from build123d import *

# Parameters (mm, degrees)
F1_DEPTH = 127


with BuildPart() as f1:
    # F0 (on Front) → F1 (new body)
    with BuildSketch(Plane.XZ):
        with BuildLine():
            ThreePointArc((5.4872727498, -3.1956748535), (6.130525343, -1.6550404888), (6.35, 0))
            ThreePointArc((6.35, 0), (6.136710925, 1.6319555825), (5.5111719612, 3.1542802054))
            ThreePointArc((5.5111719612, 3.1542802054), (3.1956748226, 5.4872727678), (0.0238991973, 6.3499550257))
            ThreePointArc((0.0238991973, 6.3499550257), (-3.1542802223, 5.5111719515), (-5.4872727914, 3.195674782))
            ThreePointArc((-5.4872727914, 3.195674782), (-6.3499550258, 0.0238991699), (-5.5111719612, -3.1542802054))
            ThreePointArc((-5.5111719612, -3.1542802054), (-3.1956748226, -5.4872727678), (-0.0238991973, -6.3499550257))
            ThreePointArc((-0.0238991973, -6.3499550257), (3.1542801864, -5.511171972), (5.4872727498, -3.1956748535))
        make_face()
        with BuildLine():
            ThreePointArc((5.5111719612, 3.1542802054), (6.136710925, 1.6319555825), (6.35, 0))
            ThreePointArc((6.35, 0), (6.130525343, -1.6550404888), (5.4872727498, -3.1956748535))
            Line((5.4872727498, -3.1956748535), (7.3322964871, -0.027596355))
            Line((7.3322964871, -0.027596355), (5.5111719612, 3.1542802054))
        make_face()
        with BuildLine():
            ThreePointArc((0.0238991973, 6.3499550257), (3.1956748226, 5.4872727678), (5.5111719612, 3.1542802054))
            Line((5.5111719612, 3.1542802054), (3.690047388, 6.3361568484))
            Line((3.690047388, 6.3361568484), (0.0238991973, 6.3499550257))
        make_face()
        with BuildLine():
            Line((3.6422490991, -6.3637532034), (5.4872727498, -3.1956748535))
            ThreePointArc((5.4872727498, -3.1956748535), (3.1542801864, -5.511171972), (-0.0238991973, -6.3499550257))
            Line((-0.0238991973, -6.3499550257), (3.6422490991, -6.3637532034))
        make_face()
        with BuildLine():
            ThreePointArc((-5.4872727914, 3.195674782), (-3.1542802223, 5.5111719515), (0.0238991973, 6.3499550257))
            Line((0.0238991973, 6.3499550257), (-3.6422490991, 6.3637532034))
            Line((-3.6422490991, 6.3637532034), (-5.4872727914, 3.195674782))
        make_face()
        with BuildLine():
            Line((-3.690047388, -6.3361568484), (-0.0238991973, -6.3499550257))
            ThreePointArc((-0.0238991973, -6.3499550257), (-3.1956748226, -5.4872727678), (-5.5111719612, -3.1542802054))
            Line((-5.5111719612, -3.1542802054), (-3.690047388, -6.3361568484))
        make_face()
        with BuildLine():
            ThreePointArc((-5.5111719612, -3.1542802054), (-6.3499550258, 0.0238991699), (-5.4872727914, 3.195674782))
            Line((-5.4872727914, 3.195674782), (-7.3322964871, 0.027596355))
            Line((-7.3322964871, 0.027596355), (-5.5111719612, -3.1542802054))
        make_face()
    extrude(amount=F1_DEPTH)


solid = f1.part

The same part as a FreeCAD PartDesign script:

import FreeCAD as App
import Part
import Sketcher
from FreeCAD import Vector
Q = App.Units.Quantity

doc = App.newDocument("Part")
body = doc.addObject("PartDesign::Body", "Body")

sketch1 = body.newObject("Sketcher::SketchObject", "Sketch")
sketch1.AttachmentSupport = (doc.getObject("XZ_Plane"), [""])
sketch1.MapMode = "FlatFace"
sketch1.addGeometry([
    Part.LineSegment(Vector(-5.5, -3.2, 0), Vector(-3.7, -6.3, 0)),
    Part.LineSegment(Vector(-3.7, -6.3, 0), Vector(3.6, -6.4, 0)),
    Part.LineSegment(Vector(3.6, -6.4, 0), Vector(5.5, -3.2, 0)),
    Part.LineSegment(Vector(5.5, -3.2, 0), Vector(7.3, 0, 0)),
    Part.LineSegment(Vector(7.3, 0, 0), Vector(5.5, 3.2, 0)),
    Part.LineSegment(Vector(5.5, 3.2, 0), Vector(3.7, 6.3, 0)),
    Part.LineSegment(Vector(3.7, 6.3, 0), Vector(-3.6, 6.4, 0)),
    Part.LineSegment(Vector(-3.6, 6.4, 0), Vector(-5.5, 3.2, 0)),
    Part.LineSegment(Vector(-5.5, 3.2, 0), Vector(-7.3, 0, 0)),
    Part.LineSegment(Vector(-7.3, 0, 0), Vector(-5.5, -3.2, 0)),
], False)
sketch1.addConstraint([
    Sketcher.Constraint("Coincident", 0, 2, 1, 1),
    Sketcher.Constraint("Coincident", 1, 2, 2, 1),
    Sketcher.Constraint("Coincident", 2, 2, 3, 1),
    Sketcher.Constraint("Coincident", 3, 2, 4, 1),
    Sketcher.Constraint("Coincident", 4, 2, 5, 1),
    Sketcher.Constraint("Coincident", 5, 2, 6, 1),
    Sketcher.Constraint("Coincident", 6, 2, 7, 1),
    Sketcher.Constraint("Coincident", 7, 2, 8, 1),
    Sketcher.Constraint("Coincident", 8, 2, 9, 1),
    Sketcher.Constraint("Coincident", 9, 2, 0, 1),
    Sketcher.Constraint("Symmetric", 0, 2, 5, 2, -1, 1),
    Sketcher.Constraint("Symmetric", 1, 2, 6, 2, -1, 1),
    Sketcher.Constraint("Symmetric", 2, 2, 7, 2, -1, 1),
    Sketcher.Constraint("Symmetric", 3, 2, 8, 2, -1, 1),
    Sketcher.Constraint("Symmetric", 4, 2, 9, 2, -1, 1),
    Sketcher.Constraint("Parallel", 2, 3),
    Sketcher.Constraint("Parallel", 0, 4),
    Sketcher.Constraint("Equal", 0, 2),
    Sketcher.Constraint("Equal", 2, 3),
    Sketcher.Constraint("Equal", 3, 4),
    Sketcher.Constraint("DistanceX", 2, 2, 4, 2, 0.023899),
    Sketcher.Constraint("Distance", 1, 7.332348),
    Sketcher.Constraint("DistanceX", -1, 1, 4, 2, 5.511172),
    Sketcher.Constraint("DistanceY", -1, 1, 4, 2, 3.15428),
    Sketcher.Constraint("DistanceY", 1, 2, 2, 2, 3.168078),
])
pad1 = body.newObject("PartDesign::Pad", "Pad")
pad1.Profile = sketch1
pad1.Length = Q("5 in")

doc.recompute()
